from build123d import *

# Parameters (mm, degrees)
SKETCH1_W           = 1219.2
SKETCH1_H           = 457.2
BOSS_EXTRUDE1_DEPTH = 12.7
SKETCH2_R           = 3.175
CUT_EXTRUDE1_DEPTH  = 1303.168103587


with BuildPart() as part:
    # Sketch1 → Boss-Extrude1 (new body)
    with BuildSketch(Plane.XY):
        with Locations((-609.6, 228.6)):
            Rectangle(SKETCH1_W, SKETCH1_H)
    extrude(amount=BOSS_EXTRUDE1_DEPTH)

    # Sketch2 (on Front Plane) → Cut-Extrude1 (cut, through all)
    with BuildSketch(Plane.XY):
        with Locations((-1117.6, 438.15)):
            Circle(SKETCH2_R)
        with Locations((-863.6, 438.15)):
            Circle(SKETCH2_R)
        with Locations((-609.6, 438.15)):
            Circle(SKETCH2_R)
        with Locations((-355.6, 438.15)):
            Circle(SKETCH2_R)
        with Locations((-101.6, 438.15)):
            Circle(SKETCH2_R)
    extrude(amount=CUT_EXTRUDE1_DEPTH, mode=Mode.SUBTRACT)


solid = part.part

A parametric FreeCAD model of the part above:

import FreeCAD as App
import Part
import Sketcher

V = App.Vector
Q = App.Units.Quantity


def add_polygon(sketch, points):
    """Adds a closed chain of lines whose ends are joined by coincident constraints."""
    first, n = sketch.GeometryCount, len(points)
    for a, b in zip(points, points[1:] + points[:1]):
        sketch.addGeometry(Part.LineSegment(App.Vector(*a, 0), App.Vector(*b, 0)), False)
    for i in range(n):
        sketch.addConstraint(Sketcher.Constraint("Coincident", first + i, 2, first + (i + 1) % n, 1))

doc = App.newDocument("Part")
body = doc.addObject("PartDesign::Body", "Body")

# Sketch on XY plane
sketch1 = body.newObject("Sketcher::SketchObject", "Sketch")
sketch1.AttachmentSupport = (doc.getObject("XY_Plane"), [""])
sketch1.MapMode = "FlatFace"
add_polygon(sketch1, [(-1219, 457), (-1219, 0), (0, 0), (0, 457)])  # lines 0-3
sketch1.addConstraint(Sketcher.Constraint("Vertical", 0))
sketch1.addConstraint(Sketcher.Constraint("Horizontal", 1))
sketch1.addConstraint(Sketcher.Constraint("Vertical", 2))
sketch1.addConstraint(Sketcher.Constraint("Horizontal", 3))
sketch1.addConstraint(Sketcher.Constraint("Coincident", 1, 2, -1, 1))
sketch1.addConstraint(Sketcher.Constraint("DistanceX", 1, 1, 1, 2, Q("48 in")))
sketch1.addConstraint(Sketcher.Constraint("DistanceY", 0, 2, 0, 1, Q("18 in")))
pad1 = body.newObject("PartDesign::Pad", "Pad")
pad1.Profile = sketch1
pad1.Length = Q("0.5 in")

# Sketch on XY plane
sketch2 = body.newObject("Sketcher::SketchObject", "Sketch001")
sketch2.AttachmentSupport = (doc.getObject("XY_Plane"), [""])
sketch2.MapMode = "FlatFace"
sketch2.addGeometry(Part.Circle(V(-1117.6, 438.1, 0), V(0, 0, 1), 3.2), False)
sketch2.addGeometry(Part.Circle(V(-863.6, 438.1, 0), V(0, 0, 1), 3.2), False)
sketch2.addGeometry(Part.Circle(V(-609.6, 438.1, 0), V(0, 0, 1), 3.2), False)
sketch2.addGeometry(Part.Circle(V(-355.6, 438.1, 0), V(0, 0, 1), 3.2), False)
sketch2.addGeometry(Part.Circle(V(-101.6, 438.1, 0), V(0, 0, 1), 3.2), False)
sketch2.addConstraint(Sketcher.Constraint("Equal", 0, 1))
sketch2.addConstraint(Sketcher.Constraint("Equal", 1, 2))
sketch2.addConstraint(Sketcher.Constraint("Equal", 2, 3))
sketch2.addConstraint(Sketcher.Constraint("Equal", 3, 4))
sketch2.addConstraint(Sketcher.Constraint("Horizontal", 0, 3, 1, 3))
sketch2.addConstraint(Sketcher.Constraint("Horizontal", 1, 3, 2, 3))
sketch2.addConstraint(Sketcher.Constraint("Horizontal", 2, 3, 3, 3))
sketch2.addConstraint(Sketcher.Constraint("Horizontal", 3, 3, 4, 3))
sketch2.addConstraint(Sketcher.Constraint("Diameter", 0, Q("0.25 in")))
sketch2.addConstraint(Sketcher.Constraint("DistanceX", 0, 3, -1, 1, Q("44 in")))
sketch2.addConstraint(Sketcher.Constraint("DistanceX", 1, 3, -1, 1, Q("34 in")))
sketch2.addConstraint(Sketcher.Constraint("DistanceX", 2, 3, -1, 1, Q("24 in")))
sketch2.addConstraint(Sketcher.Constraint("DistanceX", 3, 3, -1, 1, Q("14 in")))
sketch2.addConstraint(Sketcher.Constraint("DistanceX", 4, 3, -1, 1, Q("4 in")))
sketch2.addConstraint(Sketcher.Constraint("DistanceY", -1, 1, 0, 3, Q("17.25 in")))
pocket1 = body.newObject("PartDesign::Pocket", "Pocket")
pocket1.Profile = sketch2
pocket1.Type = "ThroughAll"
pocket1.Reversed = True

doc.recompute()
